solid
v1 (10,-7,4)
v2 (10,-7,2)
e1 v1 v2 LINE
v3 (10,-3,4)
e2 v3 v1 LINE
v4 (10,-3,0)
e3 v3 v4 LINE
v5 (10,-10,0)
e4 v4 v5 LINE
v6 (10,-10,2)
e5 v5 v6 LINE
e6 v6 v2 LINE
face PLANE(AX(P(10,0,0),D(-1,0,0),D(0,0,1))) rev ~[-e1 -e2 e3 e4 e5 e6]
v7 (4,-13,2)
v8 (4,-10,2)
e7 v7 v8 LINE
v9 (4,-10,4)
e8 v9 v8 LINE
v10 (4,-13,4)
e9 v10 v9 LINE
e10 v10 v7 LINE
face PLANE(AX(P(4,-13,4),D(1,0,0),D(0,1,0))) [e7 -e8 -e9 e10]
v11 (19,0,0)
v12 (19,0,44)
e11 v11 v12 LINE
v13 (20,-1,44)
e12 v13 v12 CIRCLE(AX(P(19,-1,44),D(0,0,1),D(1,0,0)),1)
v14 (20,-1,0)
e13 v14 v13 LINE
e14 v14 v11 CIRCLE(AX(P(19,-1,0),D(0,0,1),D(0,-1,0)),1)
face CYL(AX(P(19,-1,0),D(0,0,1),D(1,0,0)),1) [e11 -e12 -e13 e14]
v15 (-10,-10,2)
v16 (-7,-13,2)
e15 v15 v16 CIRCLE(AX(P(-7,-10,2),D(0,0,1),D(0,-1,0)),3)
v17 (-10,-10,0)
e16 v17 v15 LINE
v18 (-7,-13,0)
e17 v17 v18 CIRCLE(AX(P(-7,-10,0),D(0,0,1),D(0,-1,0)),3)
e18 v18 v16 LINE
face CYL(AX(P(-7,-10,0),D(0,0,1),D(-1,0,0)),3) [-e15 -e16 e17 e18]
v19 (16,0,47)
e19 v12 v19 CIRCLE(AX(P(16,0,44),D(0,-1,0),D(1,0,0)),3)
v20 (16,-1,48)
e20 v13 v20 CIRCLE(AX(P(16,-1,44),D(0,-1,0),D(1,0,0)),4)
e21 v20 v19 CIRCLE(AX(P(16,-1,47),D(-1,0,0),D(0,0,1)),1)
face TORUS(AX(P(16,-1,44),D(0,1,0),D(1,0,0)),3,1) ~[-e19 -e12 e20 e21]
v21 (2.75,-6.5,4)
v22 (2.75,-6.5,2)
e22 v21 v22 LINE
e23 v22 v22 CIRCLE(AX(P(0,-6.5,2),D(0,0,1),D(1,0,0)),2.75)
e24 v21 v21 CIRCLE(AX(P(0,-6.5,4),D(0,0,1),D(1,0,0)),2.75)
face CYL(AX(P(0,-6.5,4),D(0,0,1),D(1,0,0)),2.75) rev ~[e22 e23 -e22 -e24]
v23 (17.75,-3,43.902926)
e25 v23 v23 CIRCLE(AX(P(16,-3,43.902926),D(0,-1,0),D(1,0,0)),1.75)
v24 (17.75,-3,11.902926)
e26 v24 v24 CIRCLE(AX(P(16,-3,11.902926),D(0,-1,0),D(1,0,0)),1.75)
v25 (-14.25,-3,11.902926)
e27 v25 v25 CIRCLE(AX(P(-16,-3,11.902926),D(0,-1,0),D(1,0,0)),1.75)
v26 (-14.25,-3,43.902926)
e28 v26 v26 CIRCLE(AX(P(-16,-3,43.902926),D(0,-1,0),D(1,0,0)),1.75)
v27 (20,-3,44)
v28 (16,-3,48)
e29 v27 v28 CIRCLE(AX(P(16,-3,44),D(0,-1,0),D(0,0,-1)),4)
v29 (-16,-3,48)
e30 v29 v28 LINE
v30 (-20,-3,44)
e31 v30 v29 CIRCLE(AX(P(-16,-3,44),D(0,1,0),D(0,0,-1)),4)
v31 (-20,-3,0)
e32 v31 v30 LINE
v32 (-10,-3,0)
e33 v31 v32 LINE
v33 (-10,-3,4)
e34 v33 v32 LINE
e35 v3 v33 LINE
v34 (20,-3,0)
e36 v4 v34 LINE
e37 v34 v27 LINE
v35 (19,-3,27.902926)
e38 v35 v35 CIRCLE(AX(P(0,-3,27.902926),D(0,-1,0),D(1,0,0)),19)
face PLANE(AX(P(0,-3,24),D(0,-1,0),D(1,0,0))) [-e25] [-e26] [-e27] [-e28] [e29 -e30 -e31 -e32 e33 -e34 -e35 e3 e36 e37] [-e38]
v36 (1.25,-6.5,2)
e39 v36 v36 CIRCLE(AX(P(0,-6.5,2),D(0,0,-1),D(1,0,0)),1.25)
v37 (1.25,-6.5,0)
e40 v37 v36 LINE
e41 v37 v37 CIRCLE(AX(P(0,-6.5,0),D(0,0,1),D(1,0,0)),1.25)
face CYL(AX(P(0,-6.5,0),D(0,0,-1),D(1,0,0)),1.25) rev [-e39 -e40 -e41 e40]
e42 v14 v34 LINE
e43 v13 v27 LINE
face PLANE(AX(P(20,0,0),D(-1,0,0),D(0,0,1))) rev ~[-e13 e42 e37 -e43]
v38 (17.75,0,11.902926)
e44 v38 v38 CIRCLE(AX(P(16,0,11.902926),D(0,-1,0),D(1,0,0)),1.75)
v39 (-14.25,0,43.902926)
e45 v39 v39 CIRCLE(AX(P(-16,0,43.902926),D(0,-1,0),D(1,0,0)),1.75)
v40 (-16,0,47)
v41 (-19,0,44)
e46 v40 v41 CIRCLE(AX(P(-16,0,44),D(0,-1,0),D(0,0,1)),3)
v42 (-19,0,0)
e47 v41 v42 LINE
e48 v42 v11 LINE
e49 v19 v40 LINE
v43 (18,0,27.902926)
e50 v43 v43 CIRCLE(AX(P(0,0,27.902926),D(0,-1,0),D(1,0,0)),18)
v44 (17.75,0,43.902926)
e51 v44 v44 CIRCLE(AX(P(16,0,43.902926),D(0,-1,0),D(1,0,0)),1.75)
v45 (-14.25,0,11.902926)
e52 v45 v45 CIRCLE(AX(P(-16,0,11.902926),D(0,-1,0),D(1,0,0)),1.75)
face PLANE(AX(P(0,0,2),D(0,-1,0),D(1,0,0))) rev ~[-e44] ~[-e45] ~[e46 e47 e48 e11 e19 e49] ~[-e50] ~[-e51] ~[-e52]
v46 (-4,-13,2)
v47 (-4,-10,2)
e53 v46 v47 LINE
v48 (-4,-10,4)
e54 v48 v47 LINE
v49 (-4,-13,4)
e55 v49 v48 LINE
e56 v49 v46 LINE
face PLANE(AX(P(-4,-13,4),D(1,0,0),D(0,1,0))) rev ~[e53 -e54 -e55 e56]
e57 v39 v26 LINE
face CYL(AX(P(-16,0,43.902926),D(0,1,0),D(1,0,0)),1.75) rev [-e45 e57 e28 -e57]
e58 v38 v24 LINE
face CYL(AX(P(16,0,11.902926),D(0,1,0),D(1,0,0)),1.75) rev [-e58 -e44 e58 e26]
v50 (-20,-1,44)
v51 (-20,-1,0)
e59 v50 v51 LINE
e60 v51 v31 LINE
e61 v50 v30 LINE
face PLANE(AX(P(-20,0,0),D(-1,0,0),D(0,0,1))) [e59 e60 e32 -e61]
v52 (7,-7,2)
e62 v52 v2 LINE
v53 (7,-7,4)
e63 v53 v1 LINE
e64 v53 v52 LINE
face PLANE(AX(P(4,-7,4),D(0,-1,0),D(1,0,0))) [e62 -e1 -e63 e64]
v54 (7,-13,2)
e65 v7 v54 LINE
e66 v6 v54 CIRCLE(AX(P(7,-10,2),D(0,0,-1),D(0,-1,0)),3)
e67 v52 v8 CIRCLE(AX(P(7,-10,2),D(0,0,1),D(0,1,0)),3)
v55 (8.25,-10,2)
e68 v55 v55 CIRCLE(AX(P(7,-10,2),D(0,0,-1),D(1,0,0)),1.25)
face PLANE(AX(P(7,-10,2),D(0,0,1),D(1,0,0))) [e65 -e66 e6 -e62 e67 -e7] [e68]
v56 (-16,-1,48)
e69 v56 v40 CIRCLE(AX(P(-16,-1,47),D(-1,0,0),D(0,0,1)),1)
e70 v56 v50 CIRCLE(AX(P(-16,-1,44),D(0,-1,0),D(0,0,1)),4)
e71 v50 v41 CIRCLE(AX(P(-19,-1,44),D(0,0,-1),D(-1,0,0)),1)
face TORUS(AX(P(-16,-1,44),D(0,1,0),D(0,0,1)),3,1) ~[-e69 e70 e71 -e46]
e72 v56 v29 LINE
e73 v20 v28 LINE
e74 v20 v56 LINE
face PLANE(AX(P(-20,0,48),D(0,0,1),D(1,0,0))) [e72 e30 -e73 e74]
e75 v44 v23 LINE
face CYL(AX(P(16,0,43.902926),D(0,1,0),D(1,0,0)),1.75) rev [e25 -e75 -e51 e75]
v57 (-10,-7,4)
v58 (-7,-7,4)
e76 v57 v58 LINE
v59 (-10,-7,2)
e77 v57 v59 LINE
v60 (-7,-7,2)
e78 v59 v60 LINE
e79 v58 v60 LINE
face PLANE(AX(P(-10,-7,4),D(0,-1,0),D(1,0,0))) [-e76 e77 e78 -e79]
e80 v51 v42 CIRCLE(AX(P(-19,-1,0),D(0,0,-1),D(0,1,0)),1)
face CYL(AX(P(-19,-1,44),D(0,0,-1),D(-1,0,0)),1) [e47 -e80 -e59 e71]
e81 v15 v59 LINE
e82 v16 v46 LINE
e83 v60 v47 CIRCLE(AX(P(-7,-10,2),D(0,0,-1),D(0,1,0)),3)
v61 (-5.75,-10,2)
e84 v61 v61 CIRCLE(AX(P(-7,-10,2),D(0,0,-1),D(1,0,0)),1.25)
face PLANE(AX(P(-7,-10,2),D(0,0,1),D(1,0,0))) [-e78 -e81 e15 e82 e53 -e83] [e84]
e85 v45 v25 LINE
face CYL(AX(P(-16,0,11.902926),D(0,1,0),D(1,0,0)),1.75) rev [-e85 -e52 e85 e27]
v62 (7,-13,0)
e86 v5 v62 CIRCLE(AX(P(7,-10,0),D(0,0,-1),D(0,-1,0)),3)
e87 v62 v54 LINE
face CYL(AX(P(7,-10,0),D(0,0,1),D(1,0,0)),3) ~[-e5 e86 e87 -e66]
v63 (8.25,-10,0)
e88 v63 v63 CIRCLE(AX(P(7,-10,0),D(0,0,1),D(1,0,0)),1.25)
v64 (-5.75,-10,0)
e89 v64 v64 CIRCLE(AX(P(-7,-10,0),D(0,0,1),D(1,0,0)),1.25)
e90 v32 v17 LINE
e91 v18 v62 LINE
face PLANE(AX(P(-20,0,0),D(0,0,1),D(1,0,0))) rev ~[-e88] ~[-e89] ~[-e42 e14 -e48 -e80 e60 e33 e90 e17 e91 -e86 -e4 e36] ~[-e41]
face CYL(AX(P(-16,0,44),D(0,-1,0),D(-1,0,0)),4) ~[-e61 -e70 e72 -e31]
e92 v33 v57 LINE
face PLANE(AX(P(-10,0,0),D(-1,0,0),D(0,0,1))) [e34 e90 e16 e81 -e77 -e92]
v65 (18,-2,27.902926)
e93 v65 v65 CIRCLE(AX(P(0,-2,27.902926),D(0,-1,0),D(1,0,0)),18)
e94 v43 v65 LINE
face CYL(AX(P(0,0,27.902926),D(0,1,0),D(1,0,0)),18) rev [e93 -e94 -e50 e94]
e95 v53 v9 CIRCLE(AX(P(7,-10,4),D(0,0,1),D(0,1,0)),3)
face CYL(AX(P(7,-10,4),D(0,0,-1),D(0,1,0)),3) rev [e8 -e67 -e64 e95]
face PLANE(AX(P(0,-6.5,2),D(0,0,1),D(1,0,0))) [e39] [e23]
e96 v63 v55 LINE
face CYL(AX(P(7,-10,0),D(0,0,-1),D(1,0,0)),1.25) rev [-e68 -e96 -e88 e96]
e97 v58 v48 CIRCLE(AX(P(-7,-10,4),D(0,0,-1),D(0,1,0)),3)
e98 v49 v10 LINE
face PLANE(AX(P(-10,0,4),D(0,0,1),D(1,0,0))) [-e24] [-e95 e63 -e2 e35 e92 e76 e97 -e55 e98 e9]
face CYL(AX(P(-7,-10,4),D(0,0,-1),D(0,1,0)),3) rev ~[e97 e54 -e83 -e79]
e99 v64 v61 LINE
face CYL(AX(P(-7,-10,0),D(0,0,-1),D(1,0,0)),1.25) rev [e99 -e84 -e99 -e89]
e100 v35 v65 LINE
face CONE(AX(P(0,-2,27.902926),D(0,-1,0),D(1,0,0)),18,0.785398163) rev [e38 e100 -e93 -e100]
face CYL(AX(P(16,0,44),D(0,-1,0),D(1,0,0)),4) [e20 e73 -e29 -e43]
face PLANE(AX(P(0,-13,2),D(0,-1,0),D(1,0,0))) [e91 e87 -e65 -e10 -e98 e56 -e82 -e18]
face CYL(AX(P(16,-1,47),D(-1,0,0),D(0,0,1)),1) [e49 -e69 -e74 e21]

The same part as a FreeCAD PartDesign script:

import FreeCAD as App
import Part
import Sketcher
from FreeCAD import Vector
Q = App.Units.Quantity


def edges_at(feature, points):
    """Names of the edges that pass closest to the given points."""
    edges = feature.Shape.Edges
    near = lambda p: min(range(len(edges)), key=lambda i: edges[i].distToShape(Part.Vertex(*p))[0])
    return sorted({f"Edge{near(p) + 1}" for p in points})

doc = App.newDocument("Part")
body = doc.addObject("PartDesign::Body", "Body")

sketch1 = body.newObject("Sketcher::SketchObject", "Sketch")
sketch1.AttachmentSupport = (doc.getObject("XZ_Plane"), [""])
sketch1.MapMode = "FlatFace"
sketch1.addGeometry([
    Part.LineSegment(Vector(-20, 48, 0), Vector(-20, 0, 0)),
    Part.LineSegment(Vector(-20, 0, 0), Vector(20, 0, 0)),
    Part.LineSegment(Vector(20, 0, 0), Vector(20, 48, 0)),
    Part.LineSegment(Vector(20, 48, 0), Vector(-20, 48, 0)),
    Part.Circle(Vector(-16, 11.9, 0), Vector(0, 0, 1), 1.8),
    Part.Circle(Vector(16, 11.9, 0), Vector(0, 0, 1), 1.8),
    Part.Circle(Vector(-16, 43.9, 0), Vector(0, 0, 1), 1.8),
    Part.Circle(Vector(0, 27.9, 0), Vector(0, 0, 1), 18),
    Part.Circle(Vector(16, 43.9, 0), Vector(0, 0, 1), 1.8),
], False)
sketch1.addConstraint([
    Sketcher.Constraint("Coincident", 0, 2, 1, 1),
    Sketcher.Constraint("Coincident", 1, 2, 2, 1),
    Sketcher.Constraint("Coincident", 2, 2, 3, 1),
    Sketcher.Constraint("Coincident", 3, 2, 0, 1),
    Sketcher.Constraint("Vertical", 0),
    Sketcher.Constraint("Horizontal", 1),
    Sketcher.Constraint("Vertical", 2),
    Sketcher.Constraint("Horizontal", 3),
    Sketcher.Constraint("Equal", 4, 5),
    Sketcher.Constraint("Equal", 5, 6),
    Sketcher.Constraint("Equal", 6, 8),
    Sketcher.Constraint("Symmetric", 0, 2, 1, 2, -1, 1),
    Sketcher.Constraint("Symmetric", 4, 3, 5, 3, -2),
    Sketcher.Constraint("Symmetric", 6, 3, 8, 3, -2),
    Sketcher.Constraint("PointOnObject", 7, 3, -2),
    Sketcher.Constraint("Vertical", 4, 3, 6, 3),
    Sketcher.Constraint("Diameter", 7, Q("36 mm")),
    Sketcher.Constraint("Diameter", 4, Q("3.5 mm")),
    Sketcher.Constraint("DistanceX", 1, 1, 1, 2, Q("40 mm")),
    Sketcher.Constraint("DistanceY", 0, 2, 0, 1, Q("48 mm")),
    Sketcher.Constraint("DistanceX", 4, 3, -1, 1, Q("16 mm")),
    Sketcher.Constraint("DistanceY", 4, 3, 6, 3, Q("32 mm")),
    Sketcher.Constraint("DistanceY", 4, 3, 7, 3, Q("16 mm")),
    Sketcher.Constraint("DistanceY", -1, 1, 4, 3, Q("11.902926 mm")),
])
pad1 = body.newObject("PartDesign::Pad", "Pad")
pad1.Profile = sketch1
pad1.Length = 3

sketch2 = body.newObject("Sketcher::SketchObject", "Sketch001")
sketch2.AttachmentSupport = (doc.getObject("XZ_Plane"), [""])
sketch2.MapMode = "FlatFace"
sketch2.addGeometry([
    Part.LineSegment(Vector(-10, 4, 0), Vector(-10, 0, 0)),
    Part.LineSegment(Vector(-10, 0, 0), Vector(10, 0, 0)),
    Part.LineSegment(Vector(10, 0, 0), Vector(10, 4, 0)),
    Part.LineSegment(Vector(10, 4, 0), Vector(-10, 4, 0)),
], False)
sketch2.addConstraint([
    Sketcher.Constraint("Coincident", 0, 2, 1, 1),
    Sketcher.Constraint("Coincident", 1, 2, 2, 1),
    Sketcher.Constraint("Coincident", 2, 2, 3, 1),
    Sketcher.Constraint("Coincident", 3, 2, 0, 1),
    Sketcher.Constraint("Vertical", 0),
    Sketcher.Constraint("Horizontal", 1),
    Sketcher.Constraint("Vertical", 2),
    Sketcher.Constraint("Horizontal", 3),
    Sketcher.Constraint("Symmetric", 0, 2, 1, 2, -1, 1),
    Sketcher.Constraint("DistanceX", 1, 1, 1, 2, Q("20 mm")),
    Sketcher.Constraint("DistanceY", 0, 2, 0, 1, Q("4 mm")),
])
pad2 = body.newObject("PartDesign::Pad", "Pad001")
pad2.Profile = sketch2
pad2.Length = 13

sketch3 = body.newObject("Sketcher::SketchObject", "Sketch002")
sketch3.AttachmentSupport = (doc.getObject("XY_Plane"), [""])
sketch3.MapMode = "FlatFace"
sketch3.addGeometry([
    Part.Circle(Vector(0, -6.5, 0), Vector(0, 0, 1), 1.2),
    Part.Circle(Vector(-7, -10, 0), Vector(0, 0, 1), 1.2),
    Part.Circle(Vector(7, -10, 0), Vector(0, 0, 1), 1.2),
], False)
sketch3.addConstraint([
    Sketcher.Constraint("Equal", 0, 1),
    Sketcher.Constraint("Equal", 1, 2),
    Sketcher.Constraint("Symmetric", 1, 3, 2, 3, -2),
    Sketcher.Constraint("PointOnObject", 0, 3, -2),
    Sketcher.Constraint("Diameter", 0, Q("2.5 mm")),
    Sketcher.Constraint("DistanceX", 1, 3, -1, 1, Q("7 mm")),
    Sketcher.Constraint("DistanceY", 1, 3, -1, 1, Q("10 mm")),
    Sketcher.Constraint("DistanceY", 0, 3, -1, 1, Q("6.5 mm")),
])
pocket1 = body.newObject("PartDesign::Pocket", "Pocket")
pocket1.Profile = sketch3
pocket1.Length = 25
pocket1.Reversed = True

sketch4 = body.newObject("Sketcher::SketchObject", "Sketch003")
sketch4.AttachmentSupport = (doc.getObject("XY_Plane"), [""])
sketch4.MapMode = "FlatFace"
sketch4.AttachmentOffset = App.Placement(Vector(0, 0, 4), App.Rotation())
sketch4.addGeometry([
    Part.LineSegment(Vector(-10, -7, 0), Vector(-10, -13, 0)),
    Part.LineSegment(Vector(-10, -13, 0), Vector(-4, -13, 0)),
    Part.LineSegment(Vector(-4, -13, 0), Vector(-4, -7, 0)),
    Part.LineSegment(Vector(-4, -7, 0), Vector(-10, -7, 0)),
    Part.LineSegment(Vector(4, -7, 0), Vector(4, -13, 0)),
    Part.LineSegment(Vector(4, -13, 0), Vector(10, -13, 0)),
    Part.LineSegment(Vector(10, -13, 0), Vector(10, -7, 0)),
    Part.LineSegment(Vector(10, -7, 0), Vector(4, -7, 0)),
    Part.Circle(Vector(0, -6.5, 0), Vector(0, 0, 1), 2.8),
], False)
sketch4.addConstraint([
    Sketcher.Constraint("Coincident", 0, 2, 1, 1),
    Sketcher.Constraint("Coincident", 1, 2, 2, 1),
    Sketcher.Constraint("Coincident", 2, 2, 3, 1),
    Sketcher.Constraint("Coincident", 3, 2, 0, 1),
    Sketcher.Constraint("Coincident", 4, 2, 5, 1),
    Sketcher.Constraint("Coincident", 5, 2, 6, 1),
    Sketcher.Constraint("Coincident", 6, 2, 7, 1),
    Sketcher.Constraint("Coincident", 7, 2, 4, 1),
    Sketcher.Constraint("Vertical", 0),
    Sketcher.Constraint("Horizontal", 1),
    Sketcher.Constraint("Vertical", 2),
    Sketcher.Constraint("Horizontal", 3),
    Sketcher.Constraint("Vertical", 4),
    Sketcher.Constraint("Horizontal", 5),
    Sketcher.Constraint("Vertical", 6),
    Sketcher.Constraint("Horizontal", 7),
    Sketcher.Constraint("Symmetric", 1, 2, 4, 2, -2),
    Sketcher.Constraint("Symmetric", 3, 2, 6, 2, -2),
    Sketcher.Constraint("PointOnObject", 8, 3, -2),
    Sketcher.Constraint("Equal", 7, 0),
    Sketcher.Constraint("Diameter", 8, Q("5.5 mm")),
    Sketcher.Constraint("DistanceX", 1, 1, 1, 2, Q("6 mm")),
    Sketcher.Constraint("DistanceX", 0, 2, -1, 1, Q("10 mm")),
    Sketcher.Constraint("DistanceY", 0, 2, -1, 1, Q("13 mm")),
    Sketcher.Constraint("DistanceY", 8, 3, -1, 1, Q("6.5 mm")),
])
pocket2 = body.newObject("PartDesign::Pocket", "Pocket001")
pocket2.Profile = sketch4
pocket2.Length = 2
doc.recompute()

fillet = body.newObject("PartDesign::Fillet", "Fillet")
fillet.Base = (pocket2, edges_at(pocket2, [(20, -1.5, 48), (-20, -1.5, 48)]))
fillet.Radius = 4
doc.recompute()

fillet2 = body.newObject("PartDesign::Fillet", "Fillet001")
fillet2.Base = (fillet, edges_at(fillet, [
    (4, -7, 3),
    (10, -13, 1),
    (-4, -7, 3),
    (-10, -13, 1),
]))
fillet2.Radius = 3
doc.recompute()

chamfer = body.newObject("PartDesign::Chamfer", "Chamfer")
chamfer.Base = (fillet2, edges_at(fillet2, [(-18, -3, 27.903)]))
chamfer.Size = 1
doc.recompute()

fillet3 = body.newObject("PartDesign::Fillet", "Fillet002")
fillet3.Base = (chamfer, edges_at(chamfer, [(20, 0, 22)]))
fillet3.Radius = 1

doc.recompute()
